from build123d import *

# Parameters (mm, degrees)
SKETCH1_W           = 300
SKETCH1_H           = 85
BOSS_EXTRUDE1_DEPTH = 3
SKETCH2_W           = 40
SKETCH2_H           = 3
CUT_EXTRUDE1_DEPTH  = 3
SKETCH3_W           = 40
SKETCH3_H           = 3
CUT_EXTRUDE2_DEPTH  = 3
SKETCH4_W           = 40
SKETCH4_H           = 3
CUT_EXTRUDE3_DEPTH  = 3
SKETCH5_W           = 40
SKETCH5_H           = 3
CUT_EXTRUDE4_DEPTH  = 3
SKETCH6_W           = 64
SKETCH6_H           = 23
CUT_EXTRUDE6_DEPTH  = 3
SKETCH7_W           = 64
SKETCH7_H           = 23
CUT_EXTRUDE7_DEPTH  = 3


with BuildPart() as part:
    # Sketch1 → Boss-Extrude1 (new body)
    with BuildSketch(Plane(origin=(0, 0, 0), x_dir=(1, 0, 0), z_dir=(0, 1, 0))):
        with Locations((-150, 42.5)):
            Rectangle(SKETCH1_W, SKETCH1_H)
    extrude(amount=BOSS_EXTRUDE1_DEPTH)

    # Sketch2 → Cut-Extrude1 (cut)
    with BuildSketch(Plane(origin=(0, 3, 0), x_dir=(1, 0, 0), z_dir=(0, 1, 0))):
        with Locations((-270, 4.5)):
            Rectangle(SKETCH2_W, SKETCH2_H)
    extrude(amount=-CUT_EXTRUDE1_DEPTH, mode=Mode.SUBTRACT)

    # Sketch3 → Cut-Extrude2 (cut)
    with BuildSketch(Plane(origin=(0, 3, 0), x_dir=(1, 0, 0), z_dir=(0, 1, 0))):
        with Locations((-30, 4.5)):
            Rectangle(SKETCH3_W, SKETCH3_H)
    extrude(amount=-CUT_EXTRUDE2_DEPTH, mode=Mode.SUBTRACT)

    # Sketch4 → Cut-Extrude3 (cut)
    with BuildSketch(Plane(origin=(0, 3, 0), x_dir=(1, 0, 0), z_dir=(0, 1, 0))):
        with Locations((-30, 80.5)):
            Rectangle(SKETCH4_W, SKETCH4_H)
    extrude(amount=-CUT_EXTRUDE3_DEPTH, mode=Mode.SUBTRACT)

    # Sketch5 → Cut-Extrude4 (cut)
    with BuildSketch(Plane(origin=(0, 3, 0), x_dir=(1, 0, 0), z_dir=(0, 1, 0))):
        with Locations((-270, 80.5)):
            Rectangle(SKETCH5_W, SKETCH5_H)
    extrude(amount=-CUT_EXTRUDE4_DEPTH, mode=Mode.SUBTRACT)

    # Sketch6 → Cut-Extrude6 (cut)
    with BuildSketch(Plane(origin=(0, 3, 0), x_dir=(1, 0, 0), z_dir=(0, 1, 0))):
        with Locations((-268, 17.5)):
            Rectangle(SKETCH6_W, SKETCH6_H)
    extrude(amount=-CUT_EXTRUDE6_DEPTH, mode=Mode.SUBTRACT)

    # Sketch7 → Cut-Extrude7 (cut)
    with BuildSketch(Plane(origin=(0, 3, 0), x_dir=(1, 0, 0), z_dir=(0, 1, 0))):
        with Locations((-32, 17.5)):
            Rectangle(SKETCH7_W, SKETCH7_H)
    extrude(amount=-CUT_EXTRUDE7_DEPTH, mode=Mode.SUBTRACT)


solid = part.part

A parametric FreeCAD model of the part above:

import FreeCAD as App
import Part
import Sketcher
Q = App.Units.Quantity


def add_polygon(sketch, points):
    """Adds a closed chain of lines whose ends are joined by coincident constraints."""
    first, n = sketch.GeometryCount, len(points)
    for a, b in zip(points, points[1:] + points[:1]):
        sketch.addGeometry(Part.LineSegment(App.Vector(*a, 0), App.Vector(*b, 0)), False)
    for i in range(n):
        sketch.addConstraint(Sketcher.Constraint("Coincident", first + i, 2, first + (i + 1) % n, 1))

doc = App.newDocument("Part")
params = doc.addObject("Spreadsheet::Sheet", "Params")
for row, (alias, value) in enumerate([
    ("sketch1_width", "300 mm"),
    ("sketch1_height", "85 mm"),
    ("pad1_length", "3 mm"),
    ("sketch2_width", "40 mm"),
    ("sketch2_height", "3 mm"),
    ("pocket1_length", "3 mm"),
    ("sketch3_width", "40 mm"),
    ("sketch3_height", "3 mm"),
    ("pocket2_length", "3 mm"),
    ("sketch4_width", "40 mm"),
    ("sketch4_height", "3 mm"),
    ("pocket3_length", "3 mm"),
    ("sketch5_width", "40 mm"),
    ("sketch5_height", "3 mm"),
    ("pocket4_length", "3 mm"),
    ("sketch6_width", "64 mm"),
    ("sketch6_height", "23 mm"),
    ("pocket5_length", "3 mm"),
    ("sketch7_width", "64 mm"),
    ("sketch7_height", "23 mm"),
    ("pocket6_length", "3 mm"),
], start=1):
    params.set(f"A{row}", alias)
    params.set(f"B{row}", "=" + value)
    params.setAlias(f"B{row}", alias)

body = doc.addObject("PartDesign::Body", "Body")

# Sketch on XZ plane
sketch1 = doc.addObject("Sketcher::SketchObject", "Sketch")
body.addObject(sketch1)
sketch1.AttachmentSupport = (doc.XZ_Plane, [""])
sketch1.MapMode = "FlatFace"
add_polygon(sketch1, [(-300, -85), (-300, 0), (0, 0), (0, -85)])  # lines 0-3
sketch1.addConstraint(Sketcher.Constraint("Vertical", 0))
sketch1.addConstraint(Sketcher.Constraint("Horizontal", 1))
sketch1.addConstraint(Sketcher.Constraint("Vertical", 2))
sketch1.addConstraint(Sketcher.Constraint("Horizontal", 3))
sketch1.addConstraint(Sketcher.Constraint("Coincident", 1, 2, -1, 1))
sketch1.addConstraint(Sketcher.Constraint("DistanceX", 1, 1, 1, 2, Q("300 mm")))
sketch1.addConstraint(Sketcher.Constraint("DistanceY", 0, 1, 0, 2, Q("85 mm")))
sketch1.setExpression("Constraints[9]", "Params.sketch1_width")
sketch1.setExpression("Constraints[10]", "Params.sketch1_height")
pad1 = doc.addObject("PartDesign::Pad", "Pad")
body.addObject(pad1)
pad1.Profile = sketch1
pad1.setExpression("Length", "Params.pad1_length")
pad1.Reversed = True

# Sketch on XZ plane
sketch2 = doc.addObject("Sketcher::SketchObject", "Sketch001")
body.addObject(sketch2)
sketch2.AttachmentSupport = (doc.XZ_Plane, [""])
sketch2.MapMode = "FlatFace"
sketch2.AttachmentOffset = App.Placement(App.Vector(0, 0, -3), App.Rotation())
add_polygon(sketch2, [(-290, -6), (-290, -3), (-250, -3), (-250, -6)])  # lines 0-3
sketch2.addConstraint(Sketcher.Constraint("Vertical", 0))
sketch2.addConstraint(Sketcher.Constraint("Horizontal", 1))
sketch2.addConstraint(Sketcher.Constraint("Vertical", 2))
sketch2.addConstraint(Sketcher.Constraint("Horizontal", 3))
sketch2.addConstraint(Sketcher.Constraint("DistanceX", 1, 1, 1, 2, Q("40 mm")))
sketch2.addConstraint(Sketcher.Constraint("DistanceY", 0, 1, 0, 2, Q("3 mm")))
sketch2.addConstraint(Sketcher.Constraint("DistanceX", 0, 2, -1, 1, Q("290 mm")))
sketch2.addConstraint(Sketcher.Constraint("DistanceY", 0, 2, -1, 1, Q("3 mm")))
sketch2.setExpression("Constraints[8]", "Params.sketch2_width")
sketch2.setExpression("Constraints[9]", "Params.sketch2_height")
pocket1 = doc.addObject("PartDesign::Pocket", "Pocket")
body.addObject(pocket1)
pocket1.Profile = sketch2
pocket1.setExpression("Length", "Params.pocket1_length")
pocket1.Reversed = True

# Sketch on XZ plane
sketch3 = doc.addObject("Sketcher::SketchObject", "Sketch002")
body.addObject(sketch3)
sketch3.AttachmentSupport = (doc.XZ_Plane, [""])
sketch3.MapMode = "FlatFace"
sketch3.AttachmentOffset = App.Placement(App.Vector(0, 0, -3), App.Rotation())
add_polygon(sketch3, [(-50, -6), (-50, -3), (-10, -3), (-10, -6)])  # lines 0-3
sketch3.addConstraint(Sketcher.Constraint("Vertical", 0))
sketch3.addConstraint(Sketcher.Constraint("Horizontal", 1))
sketch3.addConstraint(Sketcher.Constraint("Vertical", 2))
sketch3.addConstraint(Sketcher.Constraint("Horizontal", 3))
sketch3.addConstraint(Sketcher.Constraint("DistanceX", 1, 1, 1, 2, Q("40 mm")))
sketch3.addConstraint(Sketcher.Constraint("DistanceY", 0, 1, 0, 2, Q("3 mm")))
sketch3.addConstraint(Sketcher.Constraint("DistanceX", 0, 2, -1, 1, Q("50 mm")))
sketch3.addConstraint(Sketcher.Constraint("DistanceY", 0, 2, -1, 1, Q("3 mm")))
sketch3.setExpression("Constraints[8]", "Params.sketch3_width")
sketch3.setExpression("Constraints[9]", "Params.sketch3_height")
pocket2 = doc.addObject("PartDesign::Pocket", "Pocket001")
body.addObject(pocket2)
pocket2.Profile = sketch3
pocket2.setExpression("Length", "Params.pocket2_length")
pocket2.Reversed = True

# Sketch on XZ plane
sketch4 = doc.addObject("Sketcher::SketchObject", "Sketch003")
body.addObject(sketch4)
sketch4.AttachmentSupport = (doc.XZ_Plane, [""])
sketch4.MapMode = "FlatFace"
sketch4.AttachmentOffset = App.Placement(App.Vector(0, 0, -3), App.Rotation())
add_polygon(sketch4, [(-50, -82), (-50, -79), (-10, -79), (-10, -82)])  # lines 0-3
sketch4.addConstraint(Sketcher.Constraint("Vertical", 0))
sketch4.addConstraint(Sketcher.Constraint("Horizontal", 1))
sketch4.addConstraint(Sketcher.Constraint("Vertical", 2))
sketch4.addConstraint(Sketcher.Constraint("Horizontal", 3))
sketch4.addConstraint(Sketcher.Constraint("DistanceX", 1, 1, 1, 2, Q("40 mm")))
sketch4.addConstraint(Sketcher.Constraint("DistanceY", 0, 1, 0, 2, Q("3 mm")))
sketch4.addConstraint(Sketcher.Constraint("DistanceX", 0, 2, -1, 1, Q("50 mm")))
sketch4.addConstraint(Sketcher.Constraint("DistanceY", 0, 2, -1, 1, Q("79 mm")))
sketch4.setExpression("Constraints[8]", "Params.sketch4_width")
sketch4.setExpression("Constraints[9]", "Params.sketch4_height")
pocket3 = doc.addObject("PartDesign::Pocket", "Pocket002")
body.addObject(pocket3)
pocket3.Profile = sketch4
pocket3.setExpression("Length", "Params.pocket3_length")
pocket3.Reversed = True

# Sketch on XZ plane
sketch5 = doc.addObject("Sketcher::SketchObject", "Sketch004")
body.addObject(sketch5)
sketch5.AttachmentSupport = (doc.XZ_Plane, [""])
sketch5.MapMode = "FlatFace"
sketch5.AttachmentOffset = App.Placement(App.Vector(0, 0, -3), App.Rotation())
add_polygon(sketch5, [(-290, -82), (-290, -79), (-250, -79), (-250, -82)])  # lines 0-3
sketch5.addConstraint(Sketcher.Constraint("Vertical", 0))
sketch5.addConstraint(Sketcher.Constraint("Horizontal", 1))
sketch5.addConstraint(Sketcher.Constraint("Vertical", 2))
sketch5.addConstraint(Sketcher.Constraint("Horizontal", 3))
sketch5.addConstraint(Sketcher.Constraint("DistanceX", 1, 1, 1, 2, Q("40 mm")))
sketch5.addConstraint(Sketcher.Constraint("DistanceY", 0, 1, 0, 2, Q("3 mm")))
sketch5.addConstraint(Sketcher.Constraint("DistanceX", 0, 2, -1, 1, Q("290 mm")))
sketch5.addConstraint(Sketcher.Constraint("DistanceY", 0, 2, -1, 1, Q("79 mm")))
sketch5.setExpression("Constraints[8]", "Params.sketch5_width")
sketch5.setExpression("Constraints[9]", "Params.sketch5_height")
pocket4 = doc.addObject("PartDesign::Pocket", "Pocket003")
body.addObject(pocket4)
pocket4.Profile = sketch5
pocket4.setExpression("Length", "Params.pocket4_length")
pocket4.Reversed = True

# Sketch on XZ plane
sketch6 = doc.addObject("Sketcher::SketchObject", "Sketch005")
body.addObject(sketch6)
sketch6.AttachmentSupport = (doc.XZ_Plane, [""])
sketch6.MapMode = "FlatFace"
sketch6.AttachmentOffset = App.Placement(App.Vector(0, 0, -3), App.Rotation())
add_polygon(sketch6, [(-300, -29), (-300, -6), (-236, -6), (-236, -29)])  # lines 0-3
sketch6.addConstraint(Sketcher.Constraint("Vertical", 0))
sketch6.addConstraint(Sketcher.Constraint("Horizontal", 1))
sketch6.addConstraint(Sketcher.Constraint("Vertical", 2))
sketch6.addConstraint(Sketcher.Constraint("Horizontal", 3))
sketch6.addConstraint(Sketcher.Constraint("DistanceX", 1, 1, 1, 2, Q("64 mm")))
sketch6.addConstraint(Sketcher.Constraint("DistanceY", 0, 1, 0, 2, Q("23 mm")))
sketch6.addConstraint(Sketcher.Constraint("DistanceX", 0, 2, -1, 1, Q("300 mm")))
sketch6.addConstraint(Sketcher.Constraint("DistanceY", 0, 2, -1, 1, Q("6 mm")))
sketch6.setExpression("Constraints[8]", "Params.sketch6_width")
sketch6.setExpression("Constraints[9]", "Params.sketch6_height")
pocket5 = doc.addObject("PartDesign::Pocket", "Pocket004")
body.addObject(pocket5)
pocket5.Profile = sketch6
pocket5.setExpression("Length", "Params.pocket5_length")
pocket5.Reversed = True

# Sketch on XZ plane
sketch7 = doc.addObject("Sketcher::SketchObject", "Sketch006")
body.addObject(sketch7)
sketch7.AttachmentSupport = (doc.XZ_Plane, [""])
sketch7.MapMode = "FlatFace"
sketch7.AttachmentOffset = App.Placement(App.Vector(0, 0, -3), App.Rotation())
add_polygon(sketch7, [(-64, -29), (-64, -6), (0, -6), (0, -29)])  # lines 0-3
sketch7.addConstraint(Sketcher.Constraint("Vertical", 0))
sketch7.addConstraint(Sketcher.Constraint("Horizontal", 1))
sketch7.addConstraint(Sketcher.Constraint("Vertical", 2))
sketch7.addConstraint(Sketcher.Constraint("Horizontal", 3))
sketch7.addConstraint(Sketcher.Constraint("PointOnObject", 1, 2, -2))
sketch7.addConstraint(Sketcher.Constraint("DistanceX", 1, 1, 1, 2, Q("64 mm")))
sketch7.addConstraint(Sketcher.Constraint("DistanceY", 0, 1, 0, 2, Q("23 mm")))
sketch7.addConstraint(Sketcher.Constraint("DistanceY", 0, 2, -1, 1, Q("6 mm")))
sketch7.setExpression("Constraints[9]", "Params.sketch7_width")
sketch7.setExpression("Constraints[10]", "Params.sketch7_height")
pocket6 = doc.addObject("PartDesign::Pocket", "Pocket005")
body.addObject(pocket6)
pocket6.Profile = sketch7
pocket6.setExpression("Length", "Params.pocket6_length")
pocket6.Reversed = True

doc.recompute()
